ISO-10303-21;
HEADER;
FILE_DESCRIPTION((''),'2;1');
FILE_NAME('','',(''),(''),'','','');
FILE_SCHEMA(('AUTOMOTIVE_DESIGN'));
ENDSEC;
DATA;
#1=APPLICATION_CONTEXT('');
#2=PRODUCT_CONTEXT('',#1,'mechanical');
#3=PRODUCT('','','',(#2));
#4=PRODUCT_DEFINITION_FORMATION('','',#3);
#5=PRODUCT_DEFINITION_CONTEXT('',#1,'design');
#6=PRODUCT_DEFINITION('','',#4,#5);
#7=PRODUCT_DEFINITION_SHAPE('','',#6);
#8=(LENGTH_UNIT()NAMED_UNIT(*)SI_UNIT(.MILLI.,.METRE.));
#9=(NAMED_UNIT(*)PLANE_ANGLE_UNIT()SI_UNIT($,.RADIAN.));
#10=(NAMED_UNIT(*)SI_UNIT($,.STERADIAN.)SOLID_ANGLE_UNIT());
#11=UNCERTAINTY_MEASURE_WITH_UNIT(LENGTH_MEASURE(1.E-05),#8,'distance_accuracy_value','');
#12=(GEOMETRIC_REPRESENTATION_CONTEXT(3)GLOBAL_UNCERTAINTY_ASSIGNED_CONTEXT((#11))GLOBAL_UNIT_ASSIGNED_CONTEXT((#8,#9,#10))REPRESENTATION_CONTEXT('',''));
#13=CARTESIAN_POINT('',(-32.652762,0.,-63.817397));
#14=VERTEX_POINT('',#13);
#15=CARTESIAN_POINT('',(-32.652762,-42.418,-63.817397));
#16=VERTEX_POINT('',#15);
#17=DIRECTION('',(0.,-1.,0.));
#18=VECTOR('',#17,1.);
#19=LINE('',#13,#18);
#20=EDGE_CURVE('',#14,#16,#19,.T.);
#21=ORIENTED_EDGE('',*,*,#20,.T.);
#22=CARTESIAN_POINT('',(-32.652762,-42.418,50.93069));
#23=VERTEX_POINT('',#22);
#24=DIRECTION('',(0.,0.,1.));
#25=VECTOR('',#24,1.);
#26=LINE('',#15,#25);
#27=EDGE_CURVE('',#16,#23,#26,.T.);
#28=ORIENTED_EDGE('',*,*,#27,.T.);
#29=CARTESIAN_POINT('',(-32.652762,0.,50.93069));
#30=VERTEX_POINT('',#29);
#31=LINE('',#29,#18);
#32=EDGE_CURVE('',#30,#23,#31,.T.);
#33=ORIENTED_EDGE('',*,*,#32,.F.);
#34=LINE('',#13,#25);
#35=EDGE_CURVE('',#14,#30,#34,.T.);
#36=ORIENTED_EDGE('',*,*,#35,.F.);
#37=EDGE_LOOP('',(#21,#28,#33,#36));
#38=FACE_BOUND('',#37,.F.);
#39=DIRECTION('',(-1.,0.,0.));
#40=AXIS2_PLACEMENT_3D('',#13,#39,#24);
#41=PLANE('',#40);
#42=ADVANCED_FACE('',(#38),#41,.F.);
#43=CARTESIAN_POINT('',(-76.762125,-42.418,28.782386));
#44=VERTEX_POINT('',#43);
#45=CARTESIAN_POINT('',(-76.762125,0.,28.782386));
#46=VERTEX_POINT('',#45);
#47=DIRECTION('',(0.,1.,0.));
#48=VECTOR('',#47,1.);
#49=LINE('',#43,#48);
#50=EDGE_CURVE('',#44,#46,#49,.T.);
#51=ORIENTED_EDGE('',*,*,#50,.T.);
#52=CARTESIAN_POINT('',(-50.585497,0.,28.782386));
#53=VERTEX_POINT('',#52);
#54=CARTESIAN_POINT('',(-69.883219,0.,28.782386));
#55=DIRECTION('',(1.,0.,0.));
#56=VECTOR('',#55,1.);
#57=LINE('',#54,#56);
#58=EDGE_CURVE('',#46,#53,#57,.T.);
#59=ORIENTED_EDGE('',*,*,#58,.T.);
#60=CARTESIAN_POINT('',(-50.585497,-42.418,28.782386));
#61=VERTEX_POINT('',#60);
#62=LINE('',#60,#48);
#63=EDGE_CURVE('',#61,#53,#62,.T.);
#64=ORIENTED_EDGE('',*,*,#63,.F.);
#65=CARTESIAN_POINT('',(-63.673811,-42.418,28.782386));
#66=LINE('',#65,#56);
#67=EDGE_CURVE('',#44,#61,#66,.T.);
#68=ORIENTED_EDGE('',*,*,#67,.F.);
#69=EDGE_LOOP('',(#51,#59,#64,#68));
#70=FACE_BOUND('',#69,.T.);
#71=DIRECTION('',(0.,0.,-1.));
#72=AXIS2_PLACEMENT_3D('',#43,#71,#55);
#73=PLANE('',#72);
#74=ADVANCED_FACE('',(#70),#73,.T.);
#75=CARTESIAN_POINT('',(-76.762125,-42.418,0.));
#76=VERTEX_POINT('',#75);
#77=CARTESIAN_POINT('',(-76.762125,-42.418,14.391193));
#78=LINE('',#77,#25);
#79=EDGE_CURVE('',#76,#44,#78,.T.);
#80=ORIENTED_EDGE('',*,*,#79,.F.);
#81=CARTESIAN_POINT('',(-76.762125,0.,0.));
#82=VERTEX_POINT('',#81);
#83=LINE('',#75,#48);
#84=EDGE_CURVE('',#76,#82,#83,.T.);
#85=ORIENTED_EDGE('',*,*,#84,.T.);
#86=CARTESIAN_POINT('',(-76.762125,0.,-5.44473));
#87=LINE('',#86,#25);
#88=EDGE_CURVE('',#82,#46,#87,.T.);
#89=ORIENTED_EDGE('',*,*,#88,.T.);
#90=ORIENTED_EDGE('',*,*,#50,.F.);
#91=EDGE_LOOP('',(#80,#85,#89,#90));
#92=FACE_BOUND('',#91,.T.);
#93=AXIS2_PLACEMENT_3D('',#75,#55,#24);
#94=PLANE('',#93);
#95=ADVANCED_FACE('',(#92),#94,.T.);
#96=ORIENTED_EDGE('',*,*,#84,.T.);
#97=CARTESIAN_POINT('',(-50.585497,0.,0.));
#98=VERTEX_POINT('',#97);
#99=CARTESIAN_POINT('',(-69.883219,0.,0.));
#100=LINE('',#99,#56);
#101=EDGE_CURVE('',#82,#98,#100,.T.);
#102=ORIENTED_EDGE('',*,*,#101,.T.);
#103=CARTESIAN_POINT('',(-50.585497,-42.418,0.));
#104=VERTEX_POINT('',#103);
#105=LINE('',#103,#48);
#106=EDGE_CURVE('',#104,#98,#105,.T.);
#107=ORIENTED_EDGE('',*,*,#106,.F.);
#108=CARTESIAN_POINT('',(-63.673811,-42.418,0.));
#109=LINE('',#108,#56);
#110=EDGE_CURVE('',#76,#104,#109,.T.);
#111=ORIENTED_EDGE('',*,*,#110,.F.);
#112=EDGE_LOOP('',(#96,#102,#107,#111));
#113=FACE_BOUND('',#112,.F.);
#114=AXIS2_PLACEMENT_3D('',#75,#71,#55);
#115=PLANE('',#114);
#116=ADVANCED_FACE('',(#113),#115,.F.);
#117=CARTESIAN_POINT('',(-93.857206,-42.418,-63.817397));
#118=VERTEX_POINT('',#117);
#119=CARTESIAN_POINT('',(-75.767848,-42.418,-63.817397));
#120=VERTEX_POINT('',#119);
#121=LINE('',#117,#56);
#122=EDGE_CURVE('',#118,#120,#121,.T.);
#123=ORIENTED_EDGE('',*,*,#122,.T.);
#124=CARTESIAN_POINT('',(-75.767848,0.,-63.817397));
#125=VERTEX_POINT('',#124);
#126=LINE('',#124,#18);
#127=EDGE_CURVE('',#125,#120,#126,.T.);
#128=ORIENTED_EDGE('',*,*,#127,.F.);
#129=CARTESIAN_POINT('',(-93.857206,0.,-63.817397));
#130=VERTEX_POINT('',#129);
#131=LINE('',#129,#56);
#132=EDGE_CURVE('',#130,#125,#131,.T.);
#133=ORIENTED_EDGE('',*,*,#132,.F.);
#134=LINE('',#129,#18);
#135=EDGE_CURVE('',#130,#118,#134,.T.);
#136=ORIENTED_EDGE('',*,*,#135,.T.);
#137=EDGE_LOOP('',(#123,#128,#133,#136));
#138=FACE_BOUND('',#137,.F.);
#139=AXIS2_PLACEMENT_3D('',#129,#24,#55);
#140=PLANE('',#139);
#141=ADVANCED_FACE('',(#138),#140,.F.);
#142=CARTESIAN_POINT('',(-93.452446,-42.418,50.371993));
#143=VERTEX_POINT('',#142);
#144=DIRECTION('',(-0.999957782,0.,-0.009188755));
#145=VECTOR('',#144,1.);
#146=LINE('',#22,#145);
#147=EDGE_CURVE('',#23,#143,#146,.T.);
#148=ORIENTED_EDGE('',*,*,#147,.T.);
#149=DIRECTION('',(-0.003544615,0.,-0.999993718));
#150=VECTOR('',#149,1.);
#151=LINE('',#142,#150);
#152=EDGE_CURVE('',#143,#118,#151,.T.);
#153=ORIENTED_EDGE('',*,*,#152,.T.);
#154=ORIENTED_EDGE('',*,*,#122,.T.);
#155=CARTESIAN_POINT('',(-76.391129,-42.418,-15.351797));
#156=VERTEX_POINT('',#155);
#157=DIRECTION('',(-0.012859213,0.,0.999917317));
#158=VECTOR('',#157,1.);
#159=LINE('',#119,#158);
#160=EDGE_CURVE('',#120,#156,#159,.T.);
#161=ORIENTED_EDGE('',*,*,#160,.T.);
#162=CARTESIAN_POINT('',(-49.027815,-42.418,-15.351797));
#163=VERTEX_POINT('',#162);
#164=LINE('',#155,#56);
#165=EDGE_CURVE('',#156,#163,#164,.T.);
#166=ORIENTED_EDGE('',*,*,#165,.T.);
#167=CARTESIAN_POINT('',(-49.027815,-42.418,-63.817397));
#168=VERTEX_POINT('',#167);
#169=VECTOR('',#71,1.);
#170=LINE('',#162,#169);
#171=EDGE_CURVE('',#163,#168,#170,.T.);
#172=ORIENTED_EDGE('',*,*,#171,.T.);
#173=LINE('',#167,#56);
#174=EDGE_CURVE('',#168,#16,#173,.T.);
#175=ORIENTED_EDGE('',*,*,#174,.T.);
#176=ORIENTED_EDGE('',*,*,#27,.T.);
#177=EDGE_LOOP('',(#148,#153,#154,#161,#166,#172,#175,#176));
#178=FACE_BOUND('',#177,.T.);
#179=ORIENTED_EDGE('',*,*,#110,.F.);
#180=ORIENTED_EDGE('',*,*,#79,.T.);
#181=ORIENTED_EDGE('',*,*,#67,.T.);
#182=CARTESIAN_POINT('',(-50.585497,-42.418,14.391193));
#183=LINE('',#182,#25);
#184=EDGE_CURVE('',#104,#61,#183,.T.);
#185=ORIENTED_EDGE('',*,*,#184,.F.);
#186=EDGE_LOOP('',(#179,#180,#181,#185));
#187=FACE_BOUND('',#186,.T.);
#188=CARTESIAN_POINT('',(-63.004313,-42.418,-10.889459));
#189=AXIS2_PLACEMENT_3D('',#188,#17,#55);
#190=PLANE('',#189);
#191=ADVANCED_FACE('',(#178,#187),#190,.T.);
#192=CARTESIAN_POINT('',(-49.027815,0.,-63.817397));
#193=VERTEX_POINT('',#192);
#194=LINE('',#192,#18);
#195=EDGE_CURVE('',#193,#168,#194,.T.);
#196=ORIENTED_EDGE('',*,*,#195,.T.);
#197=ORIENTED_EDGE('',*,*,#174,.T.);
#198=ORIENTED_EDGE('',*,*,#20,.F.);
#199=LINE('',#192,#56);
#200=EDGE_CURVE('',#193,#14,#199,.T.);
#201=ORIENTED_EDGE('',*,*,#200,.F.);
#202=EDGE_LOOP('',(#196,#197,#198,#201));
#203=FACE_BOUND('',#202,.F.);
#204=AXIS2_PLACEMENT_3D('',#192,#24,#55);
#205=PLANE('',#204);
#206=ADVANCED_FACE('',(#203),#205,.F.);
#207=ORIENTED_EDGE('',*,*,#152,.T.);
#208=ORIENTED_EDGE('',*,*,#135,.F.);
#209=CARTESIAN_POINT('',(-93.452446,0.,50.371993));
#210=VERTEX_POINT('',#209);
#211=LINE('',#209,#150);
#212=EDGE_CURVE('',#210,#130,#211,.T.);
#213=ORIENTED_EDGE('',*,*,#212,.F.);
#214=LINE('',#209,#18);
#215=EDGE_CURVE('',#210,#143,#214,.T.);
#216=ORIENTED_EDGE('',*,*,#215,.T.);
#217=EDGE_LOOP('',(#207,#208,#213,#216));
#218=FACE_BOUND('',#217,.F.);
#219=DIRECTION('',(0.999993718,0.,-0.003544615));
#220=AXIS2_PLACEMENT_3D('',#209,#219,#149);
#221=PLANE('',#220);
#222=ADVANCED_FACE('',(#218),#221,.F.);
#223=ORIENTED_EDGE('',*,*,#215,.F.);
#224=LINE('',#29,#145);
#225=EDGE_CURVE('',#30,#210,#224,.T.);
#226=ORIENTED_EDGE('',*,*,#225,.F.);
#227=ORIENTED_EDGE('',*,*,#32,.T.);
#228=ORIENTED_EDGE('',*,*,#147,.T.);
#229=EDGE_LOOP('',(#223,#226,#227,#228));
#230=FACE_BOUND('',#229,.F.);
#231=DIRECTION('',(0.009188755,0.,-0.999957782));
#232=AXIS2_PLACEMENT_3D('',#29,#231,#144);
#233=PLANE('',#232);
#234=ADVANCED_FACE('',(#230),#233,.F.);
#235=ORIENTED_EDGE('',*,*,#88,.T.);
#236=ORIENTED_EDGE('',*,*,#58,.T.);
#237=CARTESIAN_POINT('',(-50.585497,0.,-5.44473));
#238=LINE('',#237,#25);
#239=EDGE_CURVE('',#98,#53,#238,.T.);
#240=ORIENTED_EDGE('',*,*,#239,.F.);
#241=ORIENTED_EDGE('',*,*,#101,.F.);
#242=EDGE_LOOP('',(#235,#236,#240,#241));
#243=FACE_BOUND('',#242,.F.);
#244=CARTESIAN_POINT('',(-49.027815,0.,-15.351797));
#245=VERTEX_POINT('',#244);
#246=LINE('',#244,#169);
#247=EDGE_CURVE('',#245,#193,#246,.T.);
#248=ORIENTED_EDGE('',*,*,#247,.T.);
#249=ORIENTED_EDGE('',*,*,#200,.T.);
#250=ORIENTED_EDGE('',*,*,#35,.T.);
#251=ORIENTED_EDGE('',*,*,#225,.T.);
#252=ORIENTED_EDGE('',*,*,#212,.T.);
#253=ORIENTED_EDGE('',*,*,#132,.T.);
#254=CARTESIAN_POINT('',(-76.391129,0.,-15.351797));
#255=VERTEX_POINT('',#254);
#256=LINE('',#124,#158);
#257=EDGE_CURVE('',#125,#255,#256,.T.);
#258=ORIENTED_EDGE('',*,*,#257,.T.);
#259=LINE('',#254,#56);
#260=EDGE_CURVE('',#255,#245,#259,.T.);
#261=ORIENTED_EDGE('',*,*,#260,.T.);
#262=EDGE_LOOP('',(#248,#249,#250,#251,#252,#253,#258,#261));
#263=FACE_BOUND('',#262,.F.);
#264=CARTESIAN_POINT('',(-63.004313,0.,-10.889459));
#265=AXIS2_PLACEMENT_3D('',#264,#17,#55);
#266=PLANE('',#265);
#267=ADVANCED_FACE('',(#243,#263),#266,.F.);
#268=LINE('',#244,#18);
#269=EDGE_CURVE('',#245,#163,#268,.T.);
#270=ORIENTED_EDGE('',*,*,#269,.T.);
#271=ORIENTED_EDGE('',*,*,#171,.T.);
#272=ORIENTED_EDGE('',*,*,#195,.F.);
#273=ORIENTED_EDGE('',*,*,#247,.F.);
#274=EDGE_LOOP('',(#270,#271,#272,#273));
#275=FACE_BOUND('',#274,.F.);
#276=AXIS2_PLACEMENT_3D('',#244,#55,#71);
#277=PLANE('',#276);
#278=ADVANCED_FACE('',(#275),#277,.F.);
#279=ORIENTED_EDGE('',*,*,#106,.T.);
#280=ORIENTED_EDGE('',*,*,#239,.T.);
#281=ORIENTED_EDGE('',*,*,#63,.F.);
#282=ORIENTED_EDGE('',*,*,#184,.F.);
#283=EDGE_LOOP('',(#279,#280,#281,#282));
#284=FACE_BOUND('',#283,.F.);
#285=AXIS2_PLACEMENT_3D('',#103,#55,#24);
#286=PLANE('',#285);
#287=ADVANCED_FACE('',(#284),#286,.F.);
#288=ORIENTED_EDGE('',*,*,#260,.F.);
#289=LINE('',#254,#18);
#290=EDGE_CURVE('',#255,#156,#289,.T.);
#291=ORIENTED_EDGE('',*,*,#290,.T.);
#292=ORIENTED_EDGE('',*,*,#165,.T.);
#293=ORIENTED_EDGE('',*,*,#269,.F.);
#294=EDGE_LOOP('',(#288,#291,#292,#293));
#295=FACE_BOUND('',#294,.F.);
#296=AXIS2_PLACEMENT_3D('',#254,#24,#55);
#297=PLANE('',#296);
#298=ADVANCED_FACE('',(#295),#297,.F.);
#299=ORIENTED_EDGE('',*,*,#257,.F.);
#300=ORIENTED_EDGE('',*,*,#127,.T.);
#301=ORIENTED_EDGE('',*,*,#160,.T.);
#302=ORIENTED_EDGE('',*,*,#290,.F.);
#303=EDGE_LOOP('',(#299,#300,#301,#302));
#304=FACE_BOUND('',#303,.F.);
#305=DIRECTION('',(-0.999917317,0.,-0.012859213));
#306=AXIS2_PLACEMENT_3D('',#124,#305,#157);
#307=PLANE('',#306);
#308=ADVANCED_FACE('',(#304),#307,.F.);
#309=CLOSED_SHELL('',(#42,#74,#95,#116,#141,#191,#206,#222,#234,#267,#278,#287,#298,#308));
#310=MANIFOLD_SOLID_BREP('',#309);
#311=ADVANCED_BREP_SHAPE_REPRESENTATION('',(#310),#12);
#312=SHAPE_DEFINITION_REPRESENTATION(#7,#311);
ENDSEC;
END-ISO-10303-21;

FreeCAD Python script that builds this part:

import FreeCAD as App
import Part
import Sketcher
from FreeCAD import Vector
Q = App.Units.Quantity


def add_polygon(sketch, points):
    """Adds a closed chain of lines whose ends are joined by coincident constraints."""
    first, n = sketch.GeometryCount, len(points)
    for a, b in zip(points, points[1:] + points[:1]):
        sketch.addGeometry(Part.LineSegment(App.Vector(*a, 0), App.Vector(*b, 0)), False)
    for i in range(n):
        sketch.addConstraint(Sketcher.Constraint("Coincident", first + i, 2, first + (i + 1) % n, 1))

doc = App.newDocument("Part")
body = doc.addObject("PartDesign::Body", "Body")

# Sketch on XZ plane
sketch1 = doc.addObject("Sketcher::SketchObject", "Sketch")
body.addObject(sketch1)
sketch1.AttachmentSupport = (doc.XZ_Plane, [""])
sketch1.MapMode = "FlatFace"
add_polygon(sketch1, [(-33, 51), (-93, 50), (-94, -64), (-76, -64), (-76, -15), (-49, -15), (-49, -64), (-33, -64)])  # lines 0-7
sketch1.addConstraint([
    Sketcher.Constraint("Horizontal", 2),
    Sketcher.Constraint("Horizontal", 4),
    Sketcher.Constraint("Vertical", 5),
    Sketcher.Constraint("Horizontal", 6),
    Sketcher.Constraint("Vertical", 7),
    Sketcher.Constraint("Horizontal", 2, 2, 5, 2),
    Sketcher.Constraint("DistanceY", 5, 2, 5, 1, Q("48.4656 mm")),
    Sketcher.Constraint("DistanceX", 2, 1, 2, 2, Q("18.089358 mm")),
    Sketcher.Constraint("Distance", 0, Q("60.802251 mm")),
    Sketcher.Constraint("DistanceX", 4, 1, 4, 2, Q("27.363314 mm")),
    Sketcher.Constraint("DistanceX", 6, 1, 6, 2, Q("16.375053 mm")),
    Sketcher.Constraint("DistanceY", 7, 1, 7, 2, Q("114.748087 mm")),
    Sketcher.Constraint("DistanceX", 2, 2, -1, 1, Q("75.767848 mm")),
    Sketcher.Constraint("DistanceX", 3, 2, -1, 1, Q("76.391129 mm")),
    Sketcher.Constraint("DistanceY", -1, 1, 7, 2, Q("50.93069 mm")),
    Sketcher.Constraint("DistanceX", 1, 2, 0, 2, Q("0.40476 mm")),
])
pad1 = doc.addObject("PartDesign::Pad", "Pad")
body.addObject(pad1)
pad1.Profile = sketch1
pad1.Length = Q("1.67 in")

# Sketch on XZ plane
sketch2 = doc.addObject("Sketcher::SketchObject", "Sketch001")
body.addObject(sketch2)
sketch2.AttachmentSupport = (doc.XZ_Plane, [""])
sketch2.MapMode = "FlatFace"
sketch2.AttachmentOffset = App.Placement(Vector(0, 0, 1.67 * 25.4), App.Rotation())
add_polygon(sketch2, [(-77, 29), (-77, 0), (-51, 0), (-51, 29)])  # lines 0-3
sketch2.addConstraint([
    Sketcher.Constraint("Vertical", 0),
    Sketcher.Constraint("Horizontal", 1),
    Sketcher.Constraint("Vertical", 2),
    Sketcher.Constraint("Horizontal", 3),
    Sketcher.Constraint("PointOnObject", 0, 2, -1),
    Sketcher.Constraint("DistanceX", 1, 1, 1, 2, Q("26.176628 mm")),
    Sketcher.Constraint("DistanceY", 0, 2, 0, 1, Q("28.782386 mm")),
    Sketcher.Constraint("DistanceX", 0, 2, -1, 1, Q("76.762125 mm")),
])
pocket1 = doc.addObject("PartDesign::Pocket", "Pocket")
body.addObject(pocket1)
pocket1.Profile = sketch2
pocket1.Length = Q("4.29 in")

doc.recompute()
